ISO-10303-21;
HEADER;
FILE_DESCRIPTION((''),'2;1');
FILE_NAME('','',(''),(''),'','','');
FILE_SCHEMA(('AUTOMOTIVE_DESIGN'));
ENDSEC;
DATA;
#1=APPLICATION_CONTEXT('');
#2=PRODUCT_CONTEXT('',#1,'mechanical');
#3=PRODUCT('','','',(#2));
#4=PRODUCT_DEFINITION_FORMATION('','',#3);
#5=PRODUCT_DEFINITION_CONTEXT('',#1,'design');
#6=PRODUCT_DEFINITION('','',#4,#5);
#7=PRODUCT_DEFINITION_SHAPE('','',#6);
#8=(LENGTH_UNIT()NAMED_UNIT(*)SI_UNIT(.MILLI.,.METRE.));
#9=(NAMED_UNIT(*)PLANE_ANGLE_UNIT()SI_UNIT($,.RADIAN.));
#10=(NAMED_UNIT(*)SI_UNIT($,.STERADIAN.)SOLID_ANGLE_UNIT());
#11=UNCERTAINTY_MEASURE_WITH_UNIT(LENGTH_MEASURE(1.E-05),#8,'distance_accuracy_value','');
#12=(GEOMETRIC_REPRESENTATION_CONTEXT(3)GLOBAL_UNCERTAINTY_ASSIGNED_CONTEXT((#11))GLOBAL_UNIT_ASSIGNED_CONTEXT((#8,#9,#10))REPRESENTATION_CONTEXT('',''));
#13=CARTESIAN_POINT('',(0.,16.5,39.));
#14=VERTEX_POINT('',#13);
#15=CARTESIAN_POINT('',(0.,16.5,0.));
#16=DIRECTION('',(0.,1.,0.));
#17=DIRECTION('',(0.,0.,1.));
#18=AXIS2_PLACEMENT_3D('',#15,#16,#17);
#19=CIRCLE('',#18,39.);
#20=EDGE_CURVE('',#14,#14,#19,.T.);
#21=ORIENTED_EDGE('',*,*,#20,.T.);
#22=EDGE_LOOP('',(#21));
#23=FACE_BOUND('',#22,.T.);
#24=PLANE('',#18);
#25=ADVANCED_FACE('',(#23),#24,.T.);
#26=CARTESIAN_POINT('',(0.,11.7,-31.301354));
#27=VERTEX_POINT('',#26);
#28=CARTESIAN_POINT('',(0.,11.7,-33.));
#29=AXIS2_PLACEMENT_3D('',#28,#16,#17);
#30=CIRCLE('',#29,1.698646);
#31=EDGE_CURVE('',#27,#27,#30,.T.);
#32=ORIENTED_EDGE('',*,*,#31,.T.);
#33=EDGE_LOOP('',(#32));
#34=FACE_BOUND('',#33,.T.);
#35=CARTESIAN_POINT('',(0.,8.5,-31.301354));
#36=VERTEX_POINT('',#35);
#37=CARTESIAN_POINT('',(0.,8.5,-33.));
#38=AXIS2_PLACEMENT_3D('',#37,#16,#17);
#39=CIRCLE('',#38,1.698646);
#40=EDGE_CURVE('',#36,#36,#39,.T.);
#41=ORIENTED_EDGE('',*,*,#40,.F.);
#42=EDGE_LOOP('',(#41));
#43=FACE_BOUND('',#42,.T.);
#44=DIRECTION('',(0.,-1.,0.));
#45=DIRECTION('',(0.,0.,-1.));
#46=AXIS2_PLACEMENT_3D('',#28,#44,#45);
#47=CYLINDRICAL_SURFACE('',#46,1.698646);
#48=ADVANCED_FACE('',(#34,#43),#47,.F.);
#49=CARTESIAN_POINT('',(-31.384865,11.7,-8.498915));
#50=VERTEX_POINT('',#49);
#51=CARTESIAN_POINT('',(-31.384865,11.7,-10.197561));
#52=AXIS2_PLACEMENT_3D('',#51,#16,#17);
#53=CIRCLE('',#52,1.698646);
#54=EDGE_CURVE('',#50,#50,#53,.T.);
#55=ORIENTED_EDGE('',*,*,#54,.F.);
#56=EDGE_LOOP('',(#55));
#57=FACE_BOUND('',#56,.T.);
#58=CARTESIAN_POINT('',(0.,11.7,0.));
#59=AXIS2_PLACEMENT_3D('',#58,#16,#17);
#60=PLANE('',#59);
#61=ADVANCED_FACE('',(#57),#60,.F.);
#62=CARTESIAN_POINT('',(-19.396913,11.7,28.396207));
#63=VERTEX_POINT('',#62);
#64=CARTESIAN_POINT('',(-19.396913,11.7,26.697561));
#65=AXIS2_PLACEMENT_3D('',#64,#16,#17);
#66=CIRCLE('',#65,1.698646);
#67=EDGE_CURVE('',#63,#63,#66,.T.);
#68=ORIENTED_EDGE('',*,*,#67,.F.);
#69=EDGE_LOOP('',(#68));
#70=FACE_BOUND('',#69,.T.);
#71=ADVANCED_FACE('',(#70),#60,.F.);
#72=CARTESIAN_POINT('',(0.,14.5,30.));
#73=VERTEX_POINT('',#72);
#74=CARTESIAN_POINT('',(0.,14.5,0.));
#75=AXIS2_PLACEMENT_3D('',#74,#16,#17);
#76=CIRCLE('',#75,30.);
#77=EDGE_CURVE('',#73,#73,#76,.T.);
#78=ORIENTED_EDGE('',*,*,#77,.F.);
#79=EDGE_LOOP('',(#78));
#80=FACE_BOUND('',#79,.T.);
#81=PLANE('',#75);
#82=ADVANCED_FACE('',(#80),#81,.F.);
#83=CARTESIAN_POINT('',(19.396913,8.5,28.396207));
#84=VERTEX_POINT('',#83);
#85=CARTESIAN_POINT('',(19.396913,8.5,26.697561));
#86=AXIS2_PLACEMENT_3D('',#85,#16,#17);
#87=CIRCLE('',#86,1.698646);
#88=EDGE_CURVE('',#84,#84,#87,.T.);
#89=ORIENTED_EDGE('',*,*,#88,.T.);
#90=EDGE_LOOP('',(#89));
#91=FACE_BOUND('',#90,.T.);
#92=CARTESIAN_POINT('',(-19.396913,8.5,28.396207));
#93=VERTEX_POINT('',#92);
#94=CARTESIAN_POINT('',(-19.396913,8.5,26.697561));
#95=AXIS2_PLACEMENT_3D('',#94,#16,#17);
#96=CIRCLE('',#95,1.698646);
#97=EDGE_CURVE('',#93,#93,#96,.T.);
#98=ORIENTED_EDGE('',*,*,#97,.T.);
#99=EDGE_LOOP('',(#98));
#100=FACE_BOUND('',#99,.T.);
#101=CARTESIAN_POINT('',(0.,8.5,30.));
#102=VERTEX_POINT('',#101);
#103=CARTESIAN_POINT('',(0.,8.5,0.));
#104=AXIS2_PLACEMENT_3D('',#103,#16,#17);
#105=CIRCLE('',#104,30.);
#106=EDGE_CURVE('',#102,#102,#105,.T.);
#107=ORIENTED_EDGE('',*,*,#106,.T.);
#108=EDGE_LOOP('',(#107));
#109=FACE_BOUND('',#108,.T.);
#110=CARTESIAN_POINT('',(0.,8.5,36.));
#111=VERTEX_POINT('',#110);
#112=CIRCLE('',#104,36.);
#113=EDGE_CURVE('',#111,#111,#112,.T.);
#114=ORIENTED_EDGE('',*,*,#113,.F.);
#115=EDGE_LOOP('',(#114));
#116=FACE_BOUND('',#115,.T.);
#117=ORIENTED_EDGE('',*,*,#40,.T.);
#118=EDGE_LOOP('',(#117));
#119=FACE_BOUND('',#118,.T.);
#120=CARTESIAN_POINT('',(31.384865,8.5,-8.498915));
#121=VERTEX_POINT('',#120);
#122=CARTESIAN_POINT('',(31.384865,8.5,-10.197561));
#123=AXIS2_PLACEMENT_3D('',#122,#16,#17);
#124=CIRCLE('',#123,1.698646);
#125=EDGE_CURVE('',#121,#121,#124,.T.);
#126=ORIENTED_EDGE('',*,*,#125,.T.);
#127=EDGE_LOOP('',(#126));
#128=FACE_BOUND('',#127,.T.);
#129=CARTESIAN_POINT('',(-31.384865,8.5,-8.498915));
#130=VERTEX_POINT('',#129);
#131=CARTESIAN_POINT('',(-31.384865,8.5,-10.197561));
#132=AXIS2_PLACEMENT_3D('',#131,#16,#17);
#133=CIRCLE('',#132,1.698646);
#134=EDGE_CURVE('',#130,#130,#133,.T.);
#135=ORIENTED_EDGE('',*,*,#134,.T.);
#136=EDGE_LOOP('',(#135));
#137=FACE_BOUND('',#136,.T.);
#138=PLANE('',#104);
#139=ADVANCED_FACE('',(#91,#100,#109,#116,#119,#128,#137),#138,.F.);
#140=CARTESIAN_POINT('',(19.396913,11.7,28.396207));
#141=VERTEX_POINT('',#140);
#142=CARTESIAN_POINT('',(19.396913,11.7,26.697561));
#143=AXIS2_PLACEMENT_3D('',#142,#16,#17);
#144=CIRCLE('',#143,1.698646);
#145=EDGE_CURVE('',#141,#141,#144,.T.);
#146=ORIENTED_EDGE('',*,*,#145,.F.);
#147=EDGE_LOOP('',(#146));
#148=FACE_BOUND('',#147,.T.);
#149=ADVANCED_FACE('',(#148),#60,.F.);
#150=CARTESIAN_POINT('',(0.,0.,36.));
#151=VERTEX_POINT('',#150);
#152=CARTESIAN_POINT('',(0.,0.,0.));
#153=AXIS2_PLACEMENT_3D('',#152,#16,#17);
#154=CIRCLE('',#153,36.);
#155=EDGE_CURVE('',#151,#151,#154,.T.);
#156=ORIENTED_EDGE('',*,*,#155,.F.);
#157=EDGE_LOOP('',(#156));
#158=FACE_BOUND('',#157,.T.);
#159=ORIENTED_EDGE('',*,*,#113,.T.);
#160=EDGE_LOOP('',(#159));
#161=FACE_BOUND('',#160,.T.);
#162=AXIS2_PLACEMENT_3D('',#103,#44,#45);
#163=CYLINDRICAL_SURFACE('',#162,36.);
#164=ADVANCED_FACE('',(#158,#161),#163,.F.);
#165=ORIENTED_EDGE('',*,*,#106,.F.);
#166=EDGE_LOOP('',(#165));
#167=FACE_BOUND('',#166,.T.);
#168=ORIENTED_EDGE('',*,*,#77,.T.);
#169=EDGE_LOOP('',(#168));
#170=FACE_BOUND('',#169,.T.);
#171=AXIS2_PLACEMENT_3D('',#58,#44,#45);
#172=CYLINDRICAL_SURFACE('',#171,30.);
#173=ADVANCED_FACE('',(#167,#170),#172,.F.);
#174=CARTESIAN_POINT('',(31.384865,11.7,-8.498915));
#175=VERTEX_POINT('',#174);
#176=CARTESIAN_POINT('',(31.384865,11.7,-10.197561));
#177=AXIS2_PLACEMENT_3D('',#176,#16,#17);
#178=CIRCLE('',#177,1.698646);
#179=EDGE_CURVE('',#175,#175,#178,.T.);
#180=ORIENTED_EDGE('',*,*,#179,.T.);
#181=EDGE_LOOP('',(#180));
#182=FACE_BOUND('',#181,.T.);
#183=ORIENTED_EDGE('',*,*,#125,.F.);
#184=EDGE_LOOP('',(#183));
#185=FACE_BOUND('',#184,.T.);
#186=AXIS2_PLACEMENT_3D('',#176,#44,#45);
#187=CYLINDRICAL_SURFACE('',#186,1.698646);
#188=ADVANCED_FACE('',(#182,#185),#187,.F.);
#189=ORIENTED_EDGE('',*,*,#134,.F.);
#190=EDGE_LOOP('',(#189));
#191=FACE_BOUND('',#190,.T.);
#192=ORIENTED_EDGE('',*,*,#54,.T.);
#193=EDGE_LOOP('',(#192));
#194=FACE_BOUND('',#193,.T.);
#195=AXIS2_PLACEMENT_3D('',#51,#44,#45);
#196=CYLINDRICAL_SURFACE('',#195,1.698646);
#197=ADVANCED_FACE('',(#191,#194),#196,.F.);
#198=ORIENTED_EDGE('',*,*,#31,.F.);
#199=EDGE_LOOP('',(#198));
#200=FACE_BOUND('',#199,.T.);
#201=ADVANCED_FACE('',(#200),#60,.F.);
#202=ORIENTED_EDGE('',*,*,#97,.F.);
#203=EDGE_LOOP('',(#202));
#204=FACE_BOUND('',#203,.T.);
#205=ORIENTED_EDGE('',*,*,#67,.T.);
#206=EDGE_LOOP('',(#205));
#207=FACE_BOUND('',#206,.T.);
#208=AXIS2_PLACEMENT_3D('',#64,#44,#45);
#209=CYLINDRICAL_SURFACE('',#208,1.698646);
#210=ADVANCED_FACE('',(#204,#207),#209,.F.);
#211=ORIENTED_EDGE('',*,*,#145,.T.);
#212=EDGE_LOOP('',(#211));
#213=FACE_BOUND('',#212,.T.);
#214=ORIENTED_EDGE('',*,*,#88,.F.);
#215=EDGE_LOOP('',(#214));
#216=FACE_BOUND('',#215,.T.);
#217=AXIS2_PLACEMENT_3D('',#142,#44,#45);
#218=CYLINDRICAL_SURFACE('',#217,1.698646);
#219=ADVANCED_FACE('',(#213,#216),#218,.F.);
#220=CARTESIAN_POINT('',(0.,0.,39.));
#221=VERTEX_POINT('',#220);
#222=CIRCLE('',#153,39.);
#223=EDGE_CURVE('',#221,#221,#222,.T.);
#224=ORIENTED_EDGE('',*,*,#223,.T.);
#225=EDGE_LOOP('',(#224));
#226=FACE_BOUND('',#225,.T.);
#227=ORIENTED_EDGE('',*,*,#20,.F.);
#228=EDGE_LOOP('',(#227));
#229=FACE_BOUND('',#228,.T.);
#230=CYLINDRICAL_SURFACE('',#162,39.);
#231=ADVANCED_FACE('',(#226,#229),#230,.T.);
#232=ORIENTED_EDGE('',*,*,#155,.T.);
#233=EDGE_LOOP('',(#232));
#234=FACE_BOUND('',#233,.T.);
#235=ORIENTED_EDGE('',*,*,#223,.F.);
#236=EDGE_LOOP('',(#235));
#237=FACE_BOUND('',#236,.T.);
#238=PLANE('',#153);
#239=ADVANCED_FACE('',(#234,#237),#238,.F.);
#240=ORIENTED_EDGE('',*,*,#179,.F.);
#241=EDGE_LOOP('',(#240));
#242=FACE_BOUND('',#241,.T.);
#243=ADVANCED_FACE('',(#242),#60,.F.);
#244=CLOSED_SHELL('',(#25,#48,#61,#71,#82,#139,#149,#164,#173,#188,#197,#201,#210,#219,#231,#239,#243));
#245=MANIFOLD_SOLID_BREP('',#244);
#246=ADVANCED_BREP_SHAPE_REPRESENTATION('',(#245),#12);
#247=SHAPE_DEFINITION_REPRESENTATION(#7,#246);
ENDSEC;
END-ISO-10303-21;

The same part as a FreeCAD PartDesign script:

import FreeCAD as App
import Part
import Sketcher
from FreeCAD import Vector

doc = App.newDocument("Part")
body = doc.addObject("PartDesign::Body", "Body")

sketch1 = doc.addObject("Sketcher::SketchObject", "Sketch")
body.addObject(sketch1)
sketch1.AttachmentSupport = (doc.XZ_Plane, [""])
sketch1.MapMode = "FlatFace"
sketch1.addGeometry(Part.Circle(Vector(0, 0, 0), Vector(0, 0, 1), 39), False)
sketch1.addGeometry(Part.Circle(Vector(0, 0, 0), Vector(0, 0, 1), 36), False)
sketch1.addConstraint(Sketcher.Constraint("Coincident", 0, 3, -1, 1))
sketch1.addConstraint(Sketcher.Constraint("Coincident", 1, 3, -1, 1))
sketch1.addConstraint(Sketcher.Constraint("Diameter", 0, 78.0))
sketch1.addConstraint(Sketcher.Constraint("Diameter", 1, 72.0))
pad1 = doc.addObject("PartDesign::Pad", "Pad")
body.addObject(pad1)
pad1.Profile = sketch1
pad1.Length = 8.5
pad1.Reversed = True

sketch2 = doc.addObject("Sketcher::SketchObject", "Sketch001")
body.addObject(sketch2)
sketch2.AttachmentSupport = (doc.XZ_Plane, [""])
sketch2.MapMode = "FlatFace"
sketch2.AttachmentOffset = App.Placement(Vector(0, 0, -8.5), App.Rotation())
sketch2.addGeometry(Part.Circle(Vector(0, 0, 0), Vector(0, 0, 1), 39), False)
sketch2.addGeometry(Part.Circle(Vector(-19.396913, 26.697561, 0), Vector(0, 0, 1), 1.698646), False)
sketch2.addGeometry(Part.Circle(Vector(19.396913, 26.697561, 0), Vector(0, 0, 1), 1.698646), False)
sketch2.addGeometry(Part.Circle(Vector(0, 0, 0), Vector(0, 0, 1), 30), False)
sketch2.addGeometry(Part.Circle(Vector(-31.384865, -10.197561, 0), Vector(0, 0, 1), 1.698646), False)
sketch2.addGeometry(Part.Circle(Vector(31.384865, -10.197561, 0), Vector(0, 0, 1), 1.698646), False)
sketch2.addGeometry(Part.Circle(Vector(0, -33, 0), Vector(0, 0, 1), 1.698646), False)
sketch2.addConstraint(Sketcher.Constraint("Coincident", 0, 3, -1, 1))
sketch2.addConstraint(Sketcher.Constraint("Coincident", 3, 3, -1, 1))
sketch2.addConstraint(Sketcher.Constraint("Equal", 1, 2))
sketch2.addConstraint(Sketcher.Constraint("Equal", 2, 4))
sketch2.addConstraint(Sketcher.Constraint("Equal", 4, 5))
sketch2.addConstraint(Sketcher.Constraint("Equal", 5, 6))
sketch2.addConstraint(Sketcher.Constraint("Symmetric", 1, 3, 2, 3, -2))
sketch2.addConstraint(Sketcher.Constraint("Symmetric", 4, 3, 5, 3, -2))
sketch2.addConstraint(Sketcher.Constraint("PointOnObject", 6, 3, -2))
sketch2.addConstraint(Sketcher.Constraint("Diameter", 0, 78.0))
sketch2.addConstraint(Sketcher.Constraint("Diameter", 3, 60.0))
sketch2.addConstraint(Sketcher.Constraint("DistanceY", 6, 3, -1, 1, 33.0))
sketch2.addConstraint(Sketcher.Constraint("Diameter", 1, 3.397292))
sketch2.addConstraint(Sketcher.Constraint("DistanceY", -1, 1, 1, 3, 26.697561))
sketch2.addConstraint(Sketcher.Constraint("DistanceY", 4, 3, -1, 1, 10.197561))
sketch2.addConstraint(Sketcher.Constraint("DistanceX", 4, 3, 1, 3, 11.987952))
sketch2.addConstraint(Sketcher.Constraint("DistanceX", 4, 3, 2, 3, 50.781778))
pad2 = doc.addObject("PartDesign::Pad", "Pad001")
body.addObject(pad2)
pad2.Profile = sketch2
pad2.Length = 3.2
pad2.Reversed = True

sketch3 = doc.addObject("Sketcher::SketchObject", "Sketch002")
body.addObject(sketch3)
sketch3.AttachmentSupport = (doc.XZ_Plane, [""])
sketch3.MapMode = "FlatFace"
sketch3.AttachmentOffset = App.Placement(Vector(0, 0, -11.7), App.Rotation())
sketch3.addGeometry(Part.Circle(Vector(0, 0, 0), Vector(0, 0, 1), 39), False)
sketch3.addGeometry(Part.Circle(Vector(0, 0, 0), Vector(0, 0, 1), 30), False)
sketch3.addConstraint(Sketcher.Constraint("Coincident", 0, 3, -1, 1))
sketch3.addConstraint(Sketcher.Constraint("Coincident", 1, 3, -1, 1))
sketch3.addConstraint(Sketcher.Constraint("Diameter", 0, 78.0))
sketch3.addConstraint(Sketcher.Constraint("Diameter", 1, 60.0))
pad3 = doc.addObject("PartDesign::Pad", "Pad002")
body.addObject(pad3)
pad3.Profile = sketch3
pad3.Length = 2.8
pad3.Reversed = True

sketch4 = doc.addObject("Sketcher::SketchObject", "Sketch003")
body.addObject(sketch4)
sketch4.AttachmentSupport = (doc.XZ_Plane, [""])
sketch4.MapMode = "FlatFace"
sketch4.AttachmentOffset = App.Placement(Vector(0, 0, -14.5), App.Rotation())
sketch4.addGeometry(Part.Circle(Vector(0, 0, 0), Vector(0, 0, 1), 39), False)
sketch4.addConstraint(Sketcher.Constraint("Coincident", 0, 3, -1, 1))
sketch4.addConstraint(Sketcher.Constraint("Diameter", 0, 78.0))
pad4 = doc.addObject("PartDesign::Pad", "Pad003")
body.addObject(pad4)
pad4.Profile = sketch4
pad4.Length = 2
pad4.Reversed = True

doc.recompute()
